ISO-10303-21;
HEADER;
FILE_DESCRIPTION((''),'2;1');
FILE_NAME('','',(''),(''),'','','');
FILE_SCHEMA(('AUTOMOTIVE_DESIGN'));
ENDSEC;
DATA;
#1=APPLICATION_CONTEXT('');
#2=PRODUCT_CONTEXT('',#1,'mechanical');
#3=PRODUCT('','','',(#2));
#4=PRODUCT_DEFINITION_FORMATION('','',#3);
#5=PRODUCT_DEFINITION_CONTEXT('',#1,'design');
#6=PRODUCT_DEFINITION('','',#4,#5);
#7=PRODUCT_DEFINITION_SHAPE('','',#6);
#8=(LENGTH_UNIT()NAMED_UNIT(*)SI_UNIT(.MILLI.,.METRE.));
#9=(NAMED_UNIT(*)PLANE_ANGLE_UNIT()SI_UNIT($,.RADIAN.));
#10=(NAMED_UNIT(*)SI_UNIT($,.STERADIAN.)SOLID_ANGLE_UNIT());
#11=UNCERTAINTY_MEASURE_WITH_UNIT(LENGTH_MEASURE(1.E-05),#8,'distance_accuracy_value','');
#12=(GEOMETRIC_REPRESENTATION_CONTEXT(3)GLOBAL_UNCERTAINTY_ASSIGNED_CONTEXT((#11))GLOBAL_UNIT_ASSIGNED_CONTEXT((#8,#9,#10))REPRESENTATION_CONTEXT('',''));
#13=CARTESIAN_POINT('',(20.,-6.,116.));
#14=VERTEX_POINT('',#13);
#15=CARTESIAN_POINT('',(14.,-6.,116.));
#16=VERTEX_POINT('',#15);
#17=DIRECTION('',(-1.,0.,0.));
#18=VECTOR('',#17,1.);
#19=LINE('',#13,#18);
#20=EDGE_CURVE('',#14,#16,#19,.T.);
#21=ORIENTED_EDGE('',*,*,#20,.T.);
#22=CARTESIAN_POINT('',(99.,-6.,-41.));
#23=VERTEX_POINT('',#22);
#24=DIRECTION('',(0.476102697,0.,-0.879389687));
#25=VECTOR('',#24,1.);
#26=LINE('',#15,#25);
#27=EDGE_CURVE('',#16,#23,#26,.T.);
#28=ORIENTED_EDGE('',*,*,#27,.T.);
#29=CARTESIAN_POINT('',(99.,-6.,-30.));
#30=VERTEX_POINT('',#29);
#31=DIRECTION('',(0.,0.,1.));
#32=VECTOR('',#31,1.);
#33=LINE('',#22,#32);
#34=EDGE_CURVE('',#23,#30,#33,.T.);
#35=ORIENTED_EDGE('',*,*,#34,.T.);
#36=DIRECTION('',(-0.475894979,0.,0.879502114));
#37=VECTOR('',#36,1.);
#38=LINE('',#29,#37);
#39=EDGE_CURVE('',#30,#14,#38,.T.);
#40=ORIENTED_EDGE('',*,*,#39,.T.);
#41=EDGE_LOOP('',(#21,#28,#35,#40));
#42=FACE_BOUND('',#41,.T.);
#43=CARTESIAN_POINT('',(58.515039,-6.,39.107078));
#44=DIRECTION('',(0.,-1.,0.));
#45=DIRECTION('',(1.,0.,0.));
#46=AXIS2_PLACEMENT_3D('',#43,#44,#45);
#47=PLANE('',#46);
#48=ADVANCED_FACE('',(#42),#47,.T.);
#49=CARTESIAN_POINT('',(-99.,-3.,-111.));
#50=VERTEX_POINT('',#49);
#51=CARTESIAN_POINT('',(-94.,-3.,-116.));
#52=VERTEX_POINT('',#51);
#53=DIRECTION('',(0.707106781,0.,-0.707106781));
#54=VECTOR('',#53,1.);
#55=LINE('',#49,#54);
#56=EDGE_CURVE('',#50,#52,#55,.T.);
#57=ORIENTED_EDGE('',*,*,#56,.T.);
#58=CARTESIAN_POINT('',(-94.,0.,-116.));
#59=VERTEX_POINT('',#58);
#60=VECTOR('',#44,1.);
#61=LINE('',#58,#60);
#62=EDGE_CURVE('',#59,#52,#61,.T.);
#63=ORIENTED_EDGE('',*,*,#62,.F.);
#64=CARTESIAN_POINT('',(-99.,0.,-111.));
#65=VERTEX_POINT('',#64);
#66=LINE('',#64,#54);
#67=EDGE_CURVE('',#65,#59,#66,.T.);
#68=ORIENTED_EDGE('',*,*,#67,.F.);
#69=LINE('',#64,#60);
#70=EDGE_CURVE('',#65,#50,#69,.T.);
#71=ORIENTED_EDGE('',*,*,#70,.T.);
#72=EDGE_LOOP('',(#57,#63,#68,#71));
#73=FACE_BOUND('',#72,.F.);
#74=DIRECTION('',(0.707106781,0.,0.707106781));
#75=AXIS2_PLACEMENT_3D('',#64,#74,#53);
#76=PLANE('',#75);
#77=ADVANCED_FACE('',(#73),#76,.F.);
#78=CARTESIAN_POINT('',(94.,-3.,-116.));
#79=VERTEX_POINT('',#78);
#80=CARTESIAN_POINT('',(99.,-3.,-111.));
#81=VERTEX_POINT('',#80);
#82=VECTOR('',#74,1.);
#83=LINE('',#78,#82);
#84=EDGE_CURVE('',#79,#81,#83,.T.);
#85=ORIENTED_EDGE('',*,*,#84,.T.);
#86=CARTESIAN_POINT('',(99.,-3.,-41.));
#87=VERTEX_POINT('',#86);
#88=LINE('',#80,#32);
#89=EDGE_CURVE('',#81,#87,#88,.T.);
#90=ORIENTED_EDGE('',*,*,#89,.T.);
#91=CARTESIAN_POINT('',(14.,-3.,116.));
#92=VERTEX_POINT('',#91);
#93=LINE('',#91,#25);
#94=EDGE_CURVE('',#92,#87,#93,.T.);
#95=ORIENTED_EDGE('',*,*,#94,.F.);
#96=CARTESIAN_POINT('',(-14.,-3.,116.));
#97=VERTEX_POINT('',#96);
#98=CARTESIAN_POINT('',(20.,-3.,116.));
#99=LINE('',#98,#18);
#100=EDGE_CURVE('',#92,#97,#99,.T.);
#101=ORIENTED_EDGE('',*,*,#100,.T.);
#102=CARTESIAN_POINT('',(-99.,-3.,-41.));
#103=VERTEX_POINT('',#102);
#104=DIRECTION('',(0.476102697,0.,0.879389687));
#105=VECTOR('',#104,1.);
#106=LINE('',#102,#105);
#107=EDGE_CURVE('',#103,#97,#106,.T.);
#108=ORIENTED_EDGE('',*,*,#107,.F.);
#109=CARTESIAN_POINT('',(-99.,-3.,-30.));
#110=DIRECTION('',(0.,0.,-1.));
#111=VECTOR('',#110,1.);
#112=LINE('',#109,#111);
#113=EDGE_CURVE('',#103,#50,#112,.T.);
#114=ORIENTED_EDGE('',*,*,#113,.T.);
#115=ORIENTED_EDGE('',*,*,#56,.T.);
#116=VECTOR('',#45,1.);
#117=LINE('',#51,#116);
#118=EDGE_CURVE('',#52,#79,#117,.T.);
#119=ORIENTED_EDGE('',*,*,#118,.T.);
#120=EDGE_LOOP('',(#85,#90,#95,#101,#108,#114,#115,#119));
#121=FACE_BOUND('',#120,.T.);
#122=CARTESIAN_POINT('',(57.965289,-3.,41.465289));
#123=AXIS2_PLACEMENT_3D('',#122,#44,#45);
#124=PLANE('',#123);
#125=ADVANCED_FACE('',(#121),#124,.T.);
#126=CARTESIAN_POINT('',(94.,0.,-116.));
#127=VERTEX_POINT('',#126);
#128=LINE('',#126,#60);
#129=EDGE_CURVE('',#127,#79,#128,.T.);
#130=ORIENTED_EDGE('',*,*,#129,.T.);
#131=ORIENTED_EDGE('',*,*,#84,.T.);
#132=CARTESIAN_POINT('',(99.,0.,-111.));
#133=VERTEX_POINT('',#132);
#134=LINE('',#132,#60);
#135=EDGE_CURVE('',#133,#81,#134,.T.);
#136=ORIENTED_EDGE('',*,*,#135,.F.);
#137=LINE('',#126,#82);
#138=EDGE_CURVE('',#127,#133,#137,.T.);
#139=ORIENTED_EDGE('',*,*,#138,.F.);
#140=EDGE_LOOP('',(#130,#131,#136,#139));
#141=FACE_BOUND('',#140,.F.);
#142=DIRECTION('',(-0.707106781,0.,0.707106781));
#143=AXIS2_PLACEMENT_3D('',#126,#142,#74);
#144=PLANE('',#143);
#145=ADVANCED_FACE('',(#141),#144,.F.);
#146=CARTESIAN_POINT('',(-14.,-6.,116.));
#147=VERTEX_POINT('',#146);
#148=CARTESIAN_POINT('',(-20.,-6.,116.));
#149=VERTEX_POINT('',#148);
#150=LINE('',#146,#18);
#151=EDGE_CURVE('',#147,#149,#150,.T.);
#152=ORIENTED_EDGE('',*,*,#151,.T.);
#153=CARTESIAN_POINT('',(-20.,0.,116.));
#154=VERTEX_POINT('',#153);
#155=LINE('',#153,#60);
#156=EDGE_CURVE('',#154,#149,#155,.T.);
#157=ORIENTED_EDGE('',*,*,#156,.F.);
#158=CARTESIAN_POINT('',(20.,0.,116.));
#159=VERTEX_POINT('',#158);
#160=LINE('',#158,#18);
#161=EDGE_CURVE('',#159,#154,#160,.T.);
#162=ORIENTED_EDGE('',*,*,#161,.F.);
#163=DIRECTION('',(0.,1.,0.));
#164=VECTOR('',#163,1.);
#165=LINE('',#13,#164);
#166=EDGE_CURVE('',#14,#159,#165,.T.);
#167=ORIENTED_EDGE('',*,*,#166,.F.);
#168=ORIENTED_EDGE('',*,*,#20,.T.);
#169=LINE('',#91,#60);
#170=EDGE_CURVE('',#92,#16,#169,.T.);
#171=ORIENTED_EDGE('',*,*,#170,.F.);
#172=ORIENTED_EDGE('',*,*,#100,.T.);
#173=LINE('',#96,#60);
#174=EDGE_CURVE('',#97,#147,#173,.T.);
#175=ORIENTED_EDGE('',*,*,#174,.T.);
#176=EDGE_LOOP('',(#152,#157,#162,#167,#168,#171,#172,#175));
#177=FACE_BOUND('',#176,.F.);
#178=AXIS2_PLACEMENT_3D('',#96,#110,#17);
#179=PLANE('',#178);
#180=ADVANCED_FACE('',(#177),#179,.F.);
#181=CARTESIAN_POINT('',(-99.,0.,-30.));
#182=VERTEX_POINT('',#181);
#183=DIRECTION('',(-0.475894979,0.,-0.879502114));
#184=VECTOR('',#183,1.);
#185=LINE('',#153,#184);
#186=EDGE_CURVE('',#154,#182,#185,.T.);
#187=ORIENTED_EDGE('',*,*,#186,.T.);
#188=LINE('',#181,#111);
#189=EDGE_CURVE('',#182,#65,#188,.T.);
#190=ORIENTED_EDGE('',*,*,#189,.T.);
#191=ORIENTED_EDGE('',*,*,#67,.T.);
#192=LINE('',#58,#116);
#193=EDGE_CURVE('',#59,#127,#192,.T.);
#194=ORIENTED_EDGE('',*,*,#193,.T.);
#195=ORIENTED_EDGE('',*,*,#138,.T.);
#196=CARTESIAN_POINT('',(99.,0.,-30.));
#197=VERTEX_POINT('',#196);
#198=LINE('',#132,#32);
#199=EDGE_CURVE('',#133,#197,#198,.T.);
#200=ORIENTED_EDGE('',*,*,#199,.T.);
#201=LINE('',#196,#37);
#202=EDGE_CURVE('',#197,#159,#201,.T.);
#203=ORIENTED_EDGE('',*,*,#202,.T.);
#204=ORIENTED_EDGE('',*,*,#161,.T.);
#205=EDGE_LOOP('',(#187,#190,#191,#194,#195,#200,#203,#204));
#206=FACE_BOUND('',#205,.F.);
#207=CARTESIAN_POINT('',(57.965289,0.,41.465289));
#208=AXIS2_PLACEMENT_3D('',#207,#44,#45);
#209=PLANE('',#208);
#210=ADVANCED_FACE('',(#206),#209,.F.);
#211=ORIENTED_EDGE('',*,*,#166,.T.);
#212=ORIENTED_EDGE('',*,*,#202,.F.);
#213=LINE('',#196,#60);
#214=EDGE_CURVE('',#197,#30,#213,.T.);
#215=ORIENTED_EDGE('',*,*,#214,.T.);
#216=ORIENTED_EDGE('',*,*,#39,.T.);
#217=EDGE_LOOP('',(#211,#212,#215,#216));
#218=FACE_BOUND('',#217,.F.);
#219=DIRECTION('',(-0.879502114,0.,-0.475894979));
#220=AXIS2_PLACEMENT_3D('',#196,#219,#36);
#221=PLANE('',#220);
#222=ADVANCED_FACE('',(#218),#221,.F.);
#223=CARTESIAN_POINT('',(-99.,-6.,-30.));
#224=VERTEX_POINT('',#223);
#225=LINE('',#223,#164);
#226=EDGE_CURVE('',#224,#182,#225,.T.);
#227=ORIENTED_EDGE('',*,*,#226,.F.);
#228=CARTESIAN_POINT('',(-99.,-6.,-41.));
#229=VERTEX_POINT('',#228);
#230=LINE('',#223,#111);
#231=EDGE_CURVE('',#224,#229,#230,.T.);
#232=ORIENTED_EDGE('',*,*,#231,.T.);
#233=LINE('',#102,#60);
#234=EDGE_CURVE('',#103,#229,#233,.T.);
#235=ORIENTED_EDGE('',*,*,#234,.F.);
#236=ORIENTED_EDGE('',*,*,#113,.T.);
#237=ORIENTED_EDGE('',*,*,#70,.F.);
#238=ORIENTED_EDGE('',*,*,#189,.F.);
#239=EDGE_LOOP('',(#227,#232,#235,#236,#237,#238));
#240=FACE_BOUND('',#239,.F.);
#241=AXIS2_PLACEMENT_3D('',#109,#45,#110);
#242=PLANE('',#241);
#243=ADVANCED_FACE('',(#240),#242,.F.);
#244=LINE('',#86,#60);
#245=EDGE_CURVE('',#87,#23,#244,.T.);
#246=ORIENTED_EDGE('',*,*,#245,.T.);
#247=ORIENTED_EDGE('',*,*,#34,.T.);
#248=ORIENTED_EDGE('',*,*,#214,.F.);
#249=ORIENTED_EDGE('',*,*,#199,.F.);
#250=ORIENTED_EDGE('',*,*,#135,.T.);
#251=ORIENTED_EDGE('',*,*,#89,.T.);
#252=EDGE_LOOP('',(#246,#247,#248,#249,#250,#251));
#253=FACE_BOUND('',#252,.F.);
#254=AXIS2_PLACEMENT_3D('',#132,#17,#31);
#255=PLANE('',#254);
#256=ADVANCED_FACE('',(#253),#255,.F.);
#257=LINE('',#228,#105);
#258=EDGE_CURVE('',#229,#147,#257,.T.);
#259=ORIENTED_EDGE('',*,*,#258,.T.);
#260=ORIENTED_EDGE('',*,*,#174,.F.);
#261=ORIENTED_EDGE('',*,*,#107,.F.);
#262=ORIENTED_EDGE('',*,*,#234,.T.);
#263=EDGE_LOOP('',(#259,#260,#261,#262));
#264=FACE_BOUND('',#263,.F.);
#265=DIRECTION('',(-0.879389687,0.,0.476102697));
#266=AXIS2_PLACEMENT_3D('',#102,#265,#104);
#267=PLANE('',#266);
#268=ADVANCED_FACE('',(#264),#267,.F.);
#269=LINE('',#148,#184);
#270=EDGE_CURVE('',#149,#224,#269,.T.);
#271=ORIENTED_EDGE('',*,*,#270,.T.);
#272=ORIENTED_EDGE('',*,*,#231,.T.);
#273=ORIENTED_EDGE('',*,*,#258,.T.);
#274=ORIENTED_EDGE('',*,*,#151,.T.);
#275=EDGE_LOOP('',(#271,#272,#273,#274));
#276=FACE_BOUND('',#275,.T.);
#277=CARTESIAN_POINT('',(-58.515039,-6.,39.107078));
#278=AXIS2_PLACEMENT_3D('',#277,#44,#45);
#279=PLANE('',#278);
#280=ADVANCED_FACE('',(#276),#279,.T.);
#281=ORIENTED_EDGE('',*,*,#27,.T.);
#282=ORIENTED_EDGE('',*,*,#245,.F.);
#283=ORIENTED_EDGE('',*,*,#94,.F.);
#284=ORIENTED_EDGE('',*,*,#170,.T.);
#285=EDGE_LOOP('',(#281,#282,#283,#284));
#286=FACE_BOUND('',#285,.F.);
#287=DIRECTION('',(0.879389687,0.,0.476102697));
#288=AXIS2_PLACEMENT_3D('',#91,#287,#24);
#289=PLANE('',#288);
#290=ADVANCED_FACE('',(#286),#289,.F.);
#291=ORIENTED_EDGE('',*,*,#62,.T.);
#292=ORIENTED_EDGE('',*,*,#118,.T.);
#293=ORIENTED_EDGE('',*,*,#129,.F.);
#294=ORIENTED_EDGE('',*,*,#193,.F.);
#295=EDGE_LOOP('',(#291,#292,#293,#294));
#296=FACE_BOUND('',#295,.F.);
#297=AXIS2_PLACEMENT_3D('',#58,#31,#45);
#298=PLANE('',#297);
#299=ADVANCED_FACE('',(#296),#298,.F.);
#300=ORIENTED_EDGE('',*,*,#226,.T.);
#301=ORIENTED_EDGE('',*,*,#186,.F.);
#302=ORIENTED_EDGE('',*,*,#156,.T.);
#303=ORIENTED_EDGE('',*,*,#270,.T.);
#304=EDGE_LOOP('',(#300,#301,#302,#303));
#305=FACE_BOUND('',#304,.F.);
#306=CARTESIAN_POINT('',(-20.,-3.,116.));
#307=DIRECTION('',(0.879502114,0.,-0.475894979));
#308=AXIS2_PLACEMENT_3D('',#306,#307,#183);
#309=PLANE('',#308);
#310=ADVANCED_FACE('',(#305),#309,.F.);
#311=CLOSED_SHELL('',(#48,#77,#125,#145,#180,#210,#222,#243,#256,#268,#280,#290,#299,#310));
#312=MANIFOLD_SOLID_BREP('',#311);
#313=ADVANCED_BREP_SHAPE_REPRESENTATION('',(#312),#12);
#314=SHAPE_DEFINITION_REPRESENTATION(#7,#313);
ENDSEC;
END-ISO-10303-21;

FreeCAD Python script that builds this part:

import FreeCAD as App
import Part
import Sketcher


def add_polygon(sketch, points):
    """Adds a closed chain of lines whose ends are joined by coincident constraints."""
    first, n = sketch.GeometryCount, len(points)
    for a, b in zip(points, points[1:] + points[:1]):
        sketch.addGeometry(Part.LineSegment(App.Vector(*a, 0), App.Vector(*b, 0)), False)
    for i in range(n):
        sketch.addConstraint(Sketcher.Constraint("Coincident", first + i, 2, first + (i + 1) % n, 1))

doc = App.newDocument("Part")
params = doc.addObject("Spreadsheet::Sheet", "Params")
for row, (alias, value) in enumerate([
    ("sketch1_width", "40 mm"),
    ("sketch1_width2", "188 mm"),
    ("sketch1_height", "81 mm"),
    ("pad1_length", "3 mm"),
    ("sketch2_width", "6 mm"),
    ("sketch2_height", "11 mm"),
    ("pad2_length", "3 mm"),
], start=1):
    params.set(f"A{row}", alias)
    params.set(f"B{row}", "=" + value)
    params.setAlias(f"B{row}", alias)

body = doc.addObject("PartDesign::Body", "Body")

sketch1 = body.newObject("Sketcher::SketchObject", "Sketch")
sketch1.AttachmentSupport = (doc.getObject("XZ_Plane"), [""])
sketch1.MapMode = "FlatFace"
add_polygon(sketch1, [(99, -30), (20, 116), (-20, 116), (-99, -30), (-99, -111), (-94, -116), (94, -116), (99, -111)])
sketch1.addConstraint([
    Sketcher.Constraint("Horizontal", 1),
    Sketcher.Constraint("Vertical", 3),
    Sketcher.Constraint("Horizontal", 5),
    Sketcher.Constraint("Vertical", 7),
    Sketcher.Constraint("Symmetric", 3, 2, 6, 2, -2),
    Sketcher.Constraint("Perpendicular", 4, 6),
    Sketcher.Constraint("Horizontal", 2, 2, 7, 2),
    Sketcher.Constraint("Equal", 0, 2),
    Sketcher.Constraint("Equal", 4, 6),
    Sketcher.Constraint("DistanceX", 1, 2, 1, 1, 40.0),
    Sketcher.Constraint("DistanceX", 5, 1, 5, 2, 188.0),
    Sketcher.Constraint("DistanceY", 3, 2, 3, 1, 81.0),
    Sketcher.Constraint("DistanceY", -1, 1, 0, 2, 116.0),
    Sketcher.Constraint("DistanceX", 2, 2, -1, 1, 99.0),
    Sketcher.Constraint("DistanceY", 2, 2, -1, 1, 30.0),
])
sketch1.setExpression("Constraints[17]", "Params.sketch1_width")
sketch1.setExpression("Constraints[18]", "Params.sketch1_width2")
sketch1.setExpression("Constraints[19]", "Params.sketch1_height")
pad1 = body.newObject("PartDesign::Pad", "Pad")
pad1.Profile = sketch1
pad1.setExpression("Length", "Params.pad1_length")

sketch2 = body.newObject("Sketcher::SketchObject", "Sketch001")
sketch2.AttachmentSupport = (doc.getObject("XZ_Plane"), [""])
sketch2.MapMode = "FlatFace"
sketch2.AttachmentOffset = App.Placement(App.Vector(0, 0, 3), App.Rotation())
add_polygon(sketch2, [(-99, -41), (-14, 116), (-20, 116), (-99, -30)])
add_polygon(sketch2, [(20, 116), (14, 116), (99, -41), (99, -30)])
sketch2.addConstraint([
    Sketcher.Constraint("Horizontal", 1),
    Sketcher.Constraint("Vertical", 3),
    Sketcher.Constraint("Horizontal", 4),
    Sketcher.Constraint("Vertical", 6),
    Sketcher.Constraint("Symmetric", 0, 2, 4, 2, -2),
    Sketcher.Constraint("Symmetric", 3, 2, 5, 2, -2),
    Sketcher.Constraint("Horizontal", 2, 2, 6, 2),
    Sketcher.Constraint("Equal", 1, 4),
    Sketcher.Constraint("DistanceX", 1, 2, 1, 1, 6.0),
    Sketcher.Constraint("DistanceY", 3, 2, 3, 1, 11.0),
    Sketcher.Constraint("DistanceX", 0, 2, -1, 1, 14.0),
    Sketcher.Constraint("DistanceY", -1, 1, 0, 2, 116.0),
    Sketcher.Constraint("DistanceX", 2, 2, -1, 1, 99.0),
    Sketcher.Constraint("DistanceY", 2, 2, -1, 1, 30.0),
])
sketch2.setExpression("Constraints[16]", "Params.sketch2_width")
sketch2.setExpression("Constraints[17]", "Params.sketch2_height")
pad2 = body.newObject("PartDesign::Pad", "Pad001")
pad2.Profile = sketch2
pad2.setExpression("Length", "Params.pad2_length")

doc.recompute()
